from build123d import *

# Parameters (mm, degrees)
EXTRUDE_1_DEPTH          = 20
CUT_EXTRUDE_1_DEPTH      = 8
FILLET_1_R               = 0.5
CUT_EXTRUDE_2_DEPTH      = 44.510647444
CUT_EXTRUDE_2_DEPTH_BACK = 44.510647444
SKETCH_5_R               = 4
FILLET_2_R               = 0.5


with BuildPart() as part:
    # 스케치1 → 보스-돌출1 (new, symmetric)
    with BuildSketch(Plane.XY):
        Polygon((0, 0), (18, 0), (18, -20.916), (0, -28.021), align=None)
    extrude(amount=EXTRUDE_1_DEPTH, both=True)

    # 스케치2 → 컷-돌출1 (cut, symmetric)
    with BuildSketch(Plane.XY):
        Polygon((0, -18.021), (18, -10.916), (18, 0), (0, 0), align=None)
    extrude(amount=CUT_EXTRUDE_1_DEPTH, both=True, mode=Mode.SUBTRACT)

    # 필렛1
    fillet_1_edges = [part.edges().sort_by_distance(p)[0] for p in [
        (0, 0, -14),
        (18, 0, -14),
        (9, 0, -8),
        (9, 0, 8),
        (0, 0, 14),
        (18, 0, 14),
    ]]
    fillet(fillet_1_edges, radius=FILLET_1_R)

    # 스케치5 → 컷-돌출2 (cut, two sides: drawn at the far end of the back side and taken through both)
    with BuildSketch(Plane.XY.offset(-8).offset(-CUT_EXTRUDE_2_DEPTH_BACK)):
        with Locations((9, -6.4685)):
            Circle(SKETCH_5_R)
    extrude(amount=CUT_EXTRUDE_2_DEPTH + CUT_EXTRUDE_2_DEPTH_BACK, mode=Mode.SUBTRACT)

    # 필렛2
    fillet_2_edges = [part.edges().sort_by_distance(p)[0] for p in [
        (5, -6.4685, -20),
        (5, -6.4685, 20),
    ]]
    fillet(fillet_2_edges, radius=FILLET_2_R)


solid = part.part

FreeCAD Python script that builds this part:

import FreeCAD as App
import Part
import Sketcher
Q = App.Units.Quantity


def edges_at(feature, points):
    """Names of the edges that pass closest to the given points."""
    edges = feature.Shape.Edges
    near = lambda p: min(range(len(edges)), key=lambda i: edges[i].distToShape(Part.Vertex(*p))[0])
    return sorted({f"Edge{near(p) + 1}" for p in points})


def add_polygon(sketch, points):
    """Adds a closed chain of lines whose ends are joined by coincident constraints."""
    first, n = sketch.GeometryCount, len(points)
    for a, b in zip(points, points[1:] + points[:1]):
        sketch.addGeometry(Part.LineSegment(App.Vector(*a, 0), App.Vector(*b, 0)), False)
    for i in range(n):
        sketch.addConstraint(Sketcher.Constraint("Coincident", first + i, 2, first + (i + 1) % n, 1))

doc = App.newDocument("Part")
body = doc.addObject("PartDesign::Body", "Body")

sketch1 = body.newObject("Sketcher::SketchObject", "Sketch")
sketch1.AttachmentSupport = (doc.getObject("XY_Plane"), [""])
sketch1.MapMode = "FlatFace"
add_polygon(sketch1, [(18, 0), (0, 0), (0, -28), (18, -21)])
sketch1.addConstraint(Sketcher.Constraint("Horizontal", 0))
sketch1.addConstraint(Sketcher.Constraint("Vertical", 1))
sketch1.addConstraint(Sketcher.Constraint("Vertical", 3))
sketch1.addConstraint(Sketcher.Constraint("Coincident", 0, 2, -1, 1))
sketch1.addConstraint(Sketcher.Constraint("DistanceX", 0, 2, 0, 1, Q("18 mm")))
sketch1.addConstraint(Sketcher.Constraint("DistanceY", 1, 2, 1, 1, Q("28.021 mm")))
sketch1.addConstraint(Sketcher.Constraint("DistanceY", 3, 1, 3, 2, Q("20.916 mm")))
pad1 = body.newObject("PartDesign::Pad", "Pad")
pad1.Profile = sketch1
pad1.Length = 40
pad1.Midplane = True

sketch2 = body.newObject("Sketcher::SketchObject", "Sketch001")
sketch2.AttachmentSupport = (doc.getObject("XY_Plane"), [""])
sketch2.MapMode = "FlatFace"
add_polygon(sketch2, [(0, -18), (18, -11), (18, 0), (0, 0)])
sketch2.addConstraint(Sketcher.Constraint("Vertical", 1))
sketch2.addConstraint(Sketcher.Constraint("Horizontal", 2))
sketch2.addConstraint(Sketcher.Constraint("Vertical", 3))
sketch2.addConstraint(Sketcher.Constraint("Coincident", 2, 2, -1, 1))
sketch2.addConstraint(Sketcher.Constraint("DistanceX", 2, 2, 2, 1, Q("18 mm")))
sketch2.addConstraint(Sketcher.Constraint("DistanceY", 1, 1, 1, 2, Q("10.916 mm")))
sketch2.addConstraint(Sketcher.Constraint("DistanceY", 3, 2, 3, 1, Q("18.021 mm")))
pocket1 = body.newObject("PartDesign::Pocket", "Pocket")
pocket1.Profile = sketch2
pocket1.Length = 16
pocket1.Midplane = True
doc.recompute()

fillet = body.newObject("PartDesign::Fillet", "Fillet")
fillet.Base = (pocket1, edges_at(pocket1, [
    (0, 0, -14),
    (18, 0, -14),
    (9, 0, -8),
    (9, 0, 8),
    (0, 0, 14),
    (18, 0, 14),
]))
fillet.Radius = 0.5

sketch3 = body.newObject("Sketcher::SketchObject", "Sketch002")
sketch3.AttachmentSupport = (doc.getObject("XY_Plane"), [""])
sketch3.MapMode = "FlatFace"
sketch3.AttachmentOffset = App.Placement(App.Vector(0, 0, -8), App.Rotation())
sketch3.addGeometry(Part.Circle(App.Vector(9, -6.5, 0), App.Vector(0, 0, 1), 4), False)
sketch3.addConstraint(Sketcher.Constraint("Diameter", 0, Q("8 mm")))
sketch3.addConstraint(Sketcher.Constraint("DistanceX", -1, 1, 0, 3, Q("9 mm")))
sketch3.addConstraint(Sketcher.Constraint("DistanceY", 0, 3, -1, 1, Q("6.4685 mm")))
pocket2 = body.newObject("PartDesign::Pocket", "Pocket001")
pocket2.Profile = sketch3
pocket2.Type = "ThroughAll"
pocket2.Midplane = True
doc.recompute()

fillet2 = body.newObject("PartDesign::Fillet", "Fillet001")
fillet2.Base = (pocket2, edges_at(pocket2, [(5, -6.468, -20), (5, -6.468, 20)]))
fillet2.Radius = 0.5

doc.recompute()
